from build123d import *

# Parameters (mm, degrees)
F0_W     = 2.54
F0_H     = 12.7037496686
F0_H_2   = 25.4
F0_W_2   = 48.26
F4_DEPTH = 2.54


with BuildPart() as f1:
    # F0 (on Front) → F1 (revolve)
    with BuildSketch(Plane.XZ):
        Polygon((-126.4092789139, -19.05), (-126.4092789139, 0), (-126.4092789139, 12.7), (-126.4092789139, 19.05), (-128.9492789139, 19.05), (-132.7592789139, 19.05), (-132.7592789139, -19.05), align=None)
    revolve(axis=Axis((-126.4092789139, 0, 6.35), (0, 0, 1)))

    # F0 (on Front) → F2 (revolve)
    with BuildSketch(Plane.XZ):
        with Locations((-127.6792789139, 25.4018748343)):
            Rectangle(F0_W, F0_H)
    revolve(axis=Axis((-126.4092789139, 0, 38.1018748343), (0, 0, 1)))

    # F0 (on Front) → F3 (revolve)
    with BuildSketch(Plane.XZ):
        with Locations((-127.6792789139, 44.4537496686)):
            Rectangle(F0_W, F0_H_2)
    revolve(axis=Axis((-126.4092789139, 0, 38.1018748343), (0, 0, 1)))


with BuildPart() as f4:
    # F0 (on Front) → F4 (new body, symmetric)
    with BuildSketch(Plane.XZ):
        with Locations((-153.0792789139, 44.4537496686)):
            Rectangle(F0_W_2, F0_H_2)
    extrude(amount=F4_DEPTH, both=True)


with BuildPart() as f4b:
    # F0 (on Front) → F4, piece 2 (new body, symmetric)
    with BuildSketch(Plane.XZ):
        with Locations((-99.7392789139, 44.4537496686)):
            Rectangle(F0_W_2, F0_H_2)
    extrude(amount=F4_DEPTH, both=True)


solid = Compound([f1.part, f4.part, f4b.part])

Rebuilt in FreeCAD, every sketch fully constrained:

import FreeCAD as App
import Part
import Sketcher

V = App.Vector
Q = App.Units.Quantity

doc = App.newDocument("Part")
body = doc.addObject("PartDesign::Body", "Body")

sketch1 = body.newObject("Sketcher::SketchObject", "Sketch")
sketch1.AttachmentSupport = (doc.getObject("XZ_Plane"), [""])
sketch1.MapMode = "FlatFace"
sketch1.addGeometry([
    Part.LineSegment(V(-126, -19, 0), V(-126, 19, 0)),
    Part.LineSegment(V(-126, 19, 0), V(-133, 19, 0)),
    Part.LineSegment(V(-133, 19, 0), V(-133, -19, 0)),
    Part.LineSegment(V(-133, -19, 0), V(-126, -19, 0)),
], False)
sketch1.addGeometry(Part.LineSegment(V(-126, -19, 0), V(-126, 19, 0)), True)
sketch1.addConstraint([
    Sketcher.Constraint("Coincident", 0, 2, 1, 1),
    Sketcher.Constraint("Coincident", 1, 2, 2, 1),
    Sketcher.Constraint("Coincident", 2, 2, 3, 1),
    Sketcher.Constraint("Coincident", 3, 2, 0, 1),
    Sketcher.Constraint("Vertical", 0),
    Sketcher.Constraint("Horizontal", 1),
    Sketcher.Constraint("Vertical", 2),
    Sketcher.Constraint("Horizontal", 3),
    Sketcher.Constraint("Vertical", 4),
    Sketcher.Constraint("Coincident", 4, 1, 3, 2),
    Sketcher.Constraint("Horizontal", 1, 2, 4, 2),
    Sketcher.Constraint("DistanceY", 0, 1, 0, 2, Q("1.5 in")),
    Sketcher.Constraint("DistanceX", 1, 2, 1, 1, Q("0.25 in")),
    Sketcher.Constraint("DistanceY", -1, 1, 0, 2, Q("0.75 in")),
    Sketcher.Constraint("DistanceX", 0, 2, -1, 1, 126.409279),
])
revolution = body.newObject("PartDesign::Revolution", "Revolution")
revolution.Profile = sketch1
revolution.ReferenceAxis = (sketch1, ["Axis0"])
revolution.Angle = 360

sketch2 = body.newObject("Sketcher::SketchObject", "Sketch001")
sketch2.AttachmentSupport = (doc.getObject("XZ_Plane"), [""])
sketch2.MapMode = "FlatFace"
sketch2.addGeometry([
    Part.LineSegment(V(-128.9, 31.8, 0), V(-128.9, 19.1, 0)),
    Part.LineSegment(V(-128.9, 19.1, 0), V(-126.4, 19.1, 0)),
    Part.LineSegment(V(-126.4, 19.1, 0), V(-126.4, 31.8, 0)),
    Part.LineSegment(V(-126.4, 31.8, 0), V(-128.9, 31.8, 0)),
], False)
sketch2.addGeometry(Part.LineSegment(V(-126.4, 19.1, 0), V(-126.4, 31.8, 0)), True)
sketch2.addConstraint([
    Sketcher.Constraint("Coincident", 0, 2, 1, 1),
    Sketcher.Constraint("Coincident", 1, 2, 2, 1),
    Sketcher.Constraint("Coincident", 2, 2, 3, 1),
    Sketcher.Constraint("Coincident", 3, 2, 0, 1),
    Sketcher.Constraint("Vertical", 0),
    Sketcher.Constraint("Horizontal", 1),
    Sketcher.Constraint("Vertical", 2),
    Sketcher.Constraint("Horizontal", 3),
    Sketcher.Constraint("Vertical", 4),
    Sketcher.Constraint("Coincident", 4, 1, 1, 2),
    Sketcher.Constraint("Horizontal", 3, 2, 4, 2),
    Sketcher.Constraint("DistanceX", 1, 1, 1, 2, Q("0.1 in")),
    Sketcher.Constraint("DistanceY", -1, 1, 0, 2, Q("0.75 in")),
    Sketcher.Constraint("DistanceY", 0, 2, 0, 1, 12.70375),
    Sketcher.Constraint("DistanceX", 0, 2, -1, 1, 128.949279),
])
revolution2 = body.newObject("PartDesign::Revolution", "Revolution001")
revolution2.Profile = sketch2
revolution2.ReferenceAxis = (sketch2, ["Axis0"])
revolution2.Angle = 360

sketch3 = body.newObject("Sketcher::SketchObject", "Sketch002")
sketch3.AttachmentSupport = (doc.getObject("XZ_Plane"), [""])
sketch3.MapMode = "FlatFace"
sketch3.addGeometry([
    Part.LineSegment(V(-128.9, 57.2, 0), V(-128.9, 31.8, 0)),
    Part.LineSegment(V(-128.9, 31.8, 0), V(-126.4, 31.8, 0)),
    Part.LineSegment(V(-126.4, 31.8, 0), V(-126.4, 57.2, 0)),
    Part.LineSegment(V(-126.4, 57.2, 0), V(-128.9, 57.2, 0)),
], False)
sketch3.addGeometry(Part.LineSegment(V(-126.4, 31.8, 0), V(-126.4, 57.2, 0)), True)
sketch3.addConstraint([
    Sketcher.Constraint("Coincident", 0, 2, 1, 1),
    Sketcher.Constraint("Coincident", 1, 2, 2, 1),
    Sketcher.Constraint("Coincident", 2, 2, 3, 1),
    Sketcher.Constraint("Coincident", 3, 2, 0, 1),
    Sketcher.Constraint("Vertical", 0),
    Sketcher.Constraint("Horizontal", 1),
    Sketcher.Constraint("Vertical", 2),
    Sketcher.Constraint("Horizontal", 3),
    Sketcher.Constraint("Vertical", 4),
    Sketcher.Constraint("Coincident", 4, 1, 1, 2),
    Sketcher.Constraint("Horizontal", 3, 2, 4, 2),
    Sketcher.Constraint("DistanceY", 0, 2, 0, 1, Q("1 in")),
    Sketcher.Constraint("DistanceX", 1, 1, 1, 2, Q("0.1 in")),
    Sketcher.Constraint("DistanceX", 0, 2, -1, 1, 128.949279),
    Sketcher.Constraint("DistanceY", -1, 1, 0, 2, 31.75375),
])
revolution3 = body.newObject("PartDesign::Revolution", "Revolution002")
revolution3.Profile = sketch3
revolution3.ReferenceAxis = (sketch3, ["Axis0"])
revolution3.Angle = 360
body2 = doc.addObject("PartDesign::Body", "Body001")

sketch4 = body2.newObject("Sketcher::SketchObject", "Sketch003")
sketch4.AttachmentSupport = (doc.getObject("XZ_Plane001"), [""])
sketch4.MapMode = "FlatFace"
sketch4.addGeometry([
    Part.LineSegment(V(-177, 57, 0), V(-177, 32, 0)),
    Part.LineSegment(V(-177, 32, 0), V(-129, 32, 0)),
    Part.LineSegment(V(-129, 32, 0), V(-129, 57, 0)),
    Part.LineSegment(V(-129, 57, 0), V(-177, 57, 0)),
], False)
sketch4.addConstraint([
    Sketcher.Constraint("Coincident", 0, 2, 1, 1),
    Sketcher.Constraint("Coincident", 1, 2, 2, 1),
    Sketcher.Constraint("Coincident", 2, 2, 3, 1),
    Sketcher.Constraint("Coincident", 3, 2, 0, 1),
    Sketcher.Constraint("Vertical", 0),
    Sketcher.Constraint("Horizontal", 1),
    Sketcher.Constraint("Vertical", 2),
    Sketcher.Constraint("Horizontal", 3),
    Sketcher.Constraint("DistanceY", 0, 2, 0, 1, Q("1 in")),
    Sketcher.Constraint("DistanceX", 1, 1, 1, 2, Q("1.9 in")),
    Sketcher.Constraint("DistanceX", 0, 2, -1, 1, 177.209279),
    Sketcher.Constraint("DistanceY", -1, 1, 0, 2, 31.75375),
])
pad1 = body2.newObject("PartDesign::Pad", "Pad")
pad1.Profile = sketch4
pad1.Length = Q("0.2 in")
pad1.Midplane = True
body3 = doc.addObject("PartDesign::Body", "Body002")

sketch5 = body3.newObject("Sketcher::SketchObject", "Sketch004")
sketch5.AttachmentSupport = (doc.getObject("XZ_Plane002"), [""])
sketch5.MapMode = "FlatFace"
sketch5.addGeometry([
    Part.LineSegment(V(-124, 57, 0), V(-124, 32, 0)),
    Part.LineSegment(V(-124, 32, 0), V(-76, 32, 0)),
    Part.LineSegment(V(-76, 32, 0), V(-76, 57, 0)),
    Part.LineSegment(V(-76, 57, 0), V(-124, 57, 0)),
], False)
sketch5.addConstraint([
    Sketcher.Constraint("Coincident", 0, 2, 1, 1),
    Sketcher.Constraint("Coincident", 1, 2, 2, 1),
    Sketcher.Constraint("Coincident", 2, 2, 3, 1),
    Sketcher.Constraint("Coincident", 3, 2, 0, 1),
    Sketcher.Constraint("Vertical", 0),
    Sketcher.Constraint("Horizontal", 1),
    Sketcher.Constraint("Vertical", 2),
    Sketcher.Constraint("Horizontal", 3),
    Sketcher.Constraint("DistanceY", 0, 2, 0, 1, Q("1 in")),
    Sketcher.Constraint("DistanceX", 1, 1, 1, 2, Q("1.9 in")),
    Sketcher.Constraint("DistanceX", 0, 2, -1, 1, 123.869279),
    Sketcher.Constraint("DistanceY", -1, 1, 0, 2, 31.75375),
])
pad2 = body3.newObject("PartDesign::Pad", "Pad001")
pad2.Profile = sketch5
pad2.Length = Q("0.2 in")
pad2.Midplane = True

doc.recompute()
